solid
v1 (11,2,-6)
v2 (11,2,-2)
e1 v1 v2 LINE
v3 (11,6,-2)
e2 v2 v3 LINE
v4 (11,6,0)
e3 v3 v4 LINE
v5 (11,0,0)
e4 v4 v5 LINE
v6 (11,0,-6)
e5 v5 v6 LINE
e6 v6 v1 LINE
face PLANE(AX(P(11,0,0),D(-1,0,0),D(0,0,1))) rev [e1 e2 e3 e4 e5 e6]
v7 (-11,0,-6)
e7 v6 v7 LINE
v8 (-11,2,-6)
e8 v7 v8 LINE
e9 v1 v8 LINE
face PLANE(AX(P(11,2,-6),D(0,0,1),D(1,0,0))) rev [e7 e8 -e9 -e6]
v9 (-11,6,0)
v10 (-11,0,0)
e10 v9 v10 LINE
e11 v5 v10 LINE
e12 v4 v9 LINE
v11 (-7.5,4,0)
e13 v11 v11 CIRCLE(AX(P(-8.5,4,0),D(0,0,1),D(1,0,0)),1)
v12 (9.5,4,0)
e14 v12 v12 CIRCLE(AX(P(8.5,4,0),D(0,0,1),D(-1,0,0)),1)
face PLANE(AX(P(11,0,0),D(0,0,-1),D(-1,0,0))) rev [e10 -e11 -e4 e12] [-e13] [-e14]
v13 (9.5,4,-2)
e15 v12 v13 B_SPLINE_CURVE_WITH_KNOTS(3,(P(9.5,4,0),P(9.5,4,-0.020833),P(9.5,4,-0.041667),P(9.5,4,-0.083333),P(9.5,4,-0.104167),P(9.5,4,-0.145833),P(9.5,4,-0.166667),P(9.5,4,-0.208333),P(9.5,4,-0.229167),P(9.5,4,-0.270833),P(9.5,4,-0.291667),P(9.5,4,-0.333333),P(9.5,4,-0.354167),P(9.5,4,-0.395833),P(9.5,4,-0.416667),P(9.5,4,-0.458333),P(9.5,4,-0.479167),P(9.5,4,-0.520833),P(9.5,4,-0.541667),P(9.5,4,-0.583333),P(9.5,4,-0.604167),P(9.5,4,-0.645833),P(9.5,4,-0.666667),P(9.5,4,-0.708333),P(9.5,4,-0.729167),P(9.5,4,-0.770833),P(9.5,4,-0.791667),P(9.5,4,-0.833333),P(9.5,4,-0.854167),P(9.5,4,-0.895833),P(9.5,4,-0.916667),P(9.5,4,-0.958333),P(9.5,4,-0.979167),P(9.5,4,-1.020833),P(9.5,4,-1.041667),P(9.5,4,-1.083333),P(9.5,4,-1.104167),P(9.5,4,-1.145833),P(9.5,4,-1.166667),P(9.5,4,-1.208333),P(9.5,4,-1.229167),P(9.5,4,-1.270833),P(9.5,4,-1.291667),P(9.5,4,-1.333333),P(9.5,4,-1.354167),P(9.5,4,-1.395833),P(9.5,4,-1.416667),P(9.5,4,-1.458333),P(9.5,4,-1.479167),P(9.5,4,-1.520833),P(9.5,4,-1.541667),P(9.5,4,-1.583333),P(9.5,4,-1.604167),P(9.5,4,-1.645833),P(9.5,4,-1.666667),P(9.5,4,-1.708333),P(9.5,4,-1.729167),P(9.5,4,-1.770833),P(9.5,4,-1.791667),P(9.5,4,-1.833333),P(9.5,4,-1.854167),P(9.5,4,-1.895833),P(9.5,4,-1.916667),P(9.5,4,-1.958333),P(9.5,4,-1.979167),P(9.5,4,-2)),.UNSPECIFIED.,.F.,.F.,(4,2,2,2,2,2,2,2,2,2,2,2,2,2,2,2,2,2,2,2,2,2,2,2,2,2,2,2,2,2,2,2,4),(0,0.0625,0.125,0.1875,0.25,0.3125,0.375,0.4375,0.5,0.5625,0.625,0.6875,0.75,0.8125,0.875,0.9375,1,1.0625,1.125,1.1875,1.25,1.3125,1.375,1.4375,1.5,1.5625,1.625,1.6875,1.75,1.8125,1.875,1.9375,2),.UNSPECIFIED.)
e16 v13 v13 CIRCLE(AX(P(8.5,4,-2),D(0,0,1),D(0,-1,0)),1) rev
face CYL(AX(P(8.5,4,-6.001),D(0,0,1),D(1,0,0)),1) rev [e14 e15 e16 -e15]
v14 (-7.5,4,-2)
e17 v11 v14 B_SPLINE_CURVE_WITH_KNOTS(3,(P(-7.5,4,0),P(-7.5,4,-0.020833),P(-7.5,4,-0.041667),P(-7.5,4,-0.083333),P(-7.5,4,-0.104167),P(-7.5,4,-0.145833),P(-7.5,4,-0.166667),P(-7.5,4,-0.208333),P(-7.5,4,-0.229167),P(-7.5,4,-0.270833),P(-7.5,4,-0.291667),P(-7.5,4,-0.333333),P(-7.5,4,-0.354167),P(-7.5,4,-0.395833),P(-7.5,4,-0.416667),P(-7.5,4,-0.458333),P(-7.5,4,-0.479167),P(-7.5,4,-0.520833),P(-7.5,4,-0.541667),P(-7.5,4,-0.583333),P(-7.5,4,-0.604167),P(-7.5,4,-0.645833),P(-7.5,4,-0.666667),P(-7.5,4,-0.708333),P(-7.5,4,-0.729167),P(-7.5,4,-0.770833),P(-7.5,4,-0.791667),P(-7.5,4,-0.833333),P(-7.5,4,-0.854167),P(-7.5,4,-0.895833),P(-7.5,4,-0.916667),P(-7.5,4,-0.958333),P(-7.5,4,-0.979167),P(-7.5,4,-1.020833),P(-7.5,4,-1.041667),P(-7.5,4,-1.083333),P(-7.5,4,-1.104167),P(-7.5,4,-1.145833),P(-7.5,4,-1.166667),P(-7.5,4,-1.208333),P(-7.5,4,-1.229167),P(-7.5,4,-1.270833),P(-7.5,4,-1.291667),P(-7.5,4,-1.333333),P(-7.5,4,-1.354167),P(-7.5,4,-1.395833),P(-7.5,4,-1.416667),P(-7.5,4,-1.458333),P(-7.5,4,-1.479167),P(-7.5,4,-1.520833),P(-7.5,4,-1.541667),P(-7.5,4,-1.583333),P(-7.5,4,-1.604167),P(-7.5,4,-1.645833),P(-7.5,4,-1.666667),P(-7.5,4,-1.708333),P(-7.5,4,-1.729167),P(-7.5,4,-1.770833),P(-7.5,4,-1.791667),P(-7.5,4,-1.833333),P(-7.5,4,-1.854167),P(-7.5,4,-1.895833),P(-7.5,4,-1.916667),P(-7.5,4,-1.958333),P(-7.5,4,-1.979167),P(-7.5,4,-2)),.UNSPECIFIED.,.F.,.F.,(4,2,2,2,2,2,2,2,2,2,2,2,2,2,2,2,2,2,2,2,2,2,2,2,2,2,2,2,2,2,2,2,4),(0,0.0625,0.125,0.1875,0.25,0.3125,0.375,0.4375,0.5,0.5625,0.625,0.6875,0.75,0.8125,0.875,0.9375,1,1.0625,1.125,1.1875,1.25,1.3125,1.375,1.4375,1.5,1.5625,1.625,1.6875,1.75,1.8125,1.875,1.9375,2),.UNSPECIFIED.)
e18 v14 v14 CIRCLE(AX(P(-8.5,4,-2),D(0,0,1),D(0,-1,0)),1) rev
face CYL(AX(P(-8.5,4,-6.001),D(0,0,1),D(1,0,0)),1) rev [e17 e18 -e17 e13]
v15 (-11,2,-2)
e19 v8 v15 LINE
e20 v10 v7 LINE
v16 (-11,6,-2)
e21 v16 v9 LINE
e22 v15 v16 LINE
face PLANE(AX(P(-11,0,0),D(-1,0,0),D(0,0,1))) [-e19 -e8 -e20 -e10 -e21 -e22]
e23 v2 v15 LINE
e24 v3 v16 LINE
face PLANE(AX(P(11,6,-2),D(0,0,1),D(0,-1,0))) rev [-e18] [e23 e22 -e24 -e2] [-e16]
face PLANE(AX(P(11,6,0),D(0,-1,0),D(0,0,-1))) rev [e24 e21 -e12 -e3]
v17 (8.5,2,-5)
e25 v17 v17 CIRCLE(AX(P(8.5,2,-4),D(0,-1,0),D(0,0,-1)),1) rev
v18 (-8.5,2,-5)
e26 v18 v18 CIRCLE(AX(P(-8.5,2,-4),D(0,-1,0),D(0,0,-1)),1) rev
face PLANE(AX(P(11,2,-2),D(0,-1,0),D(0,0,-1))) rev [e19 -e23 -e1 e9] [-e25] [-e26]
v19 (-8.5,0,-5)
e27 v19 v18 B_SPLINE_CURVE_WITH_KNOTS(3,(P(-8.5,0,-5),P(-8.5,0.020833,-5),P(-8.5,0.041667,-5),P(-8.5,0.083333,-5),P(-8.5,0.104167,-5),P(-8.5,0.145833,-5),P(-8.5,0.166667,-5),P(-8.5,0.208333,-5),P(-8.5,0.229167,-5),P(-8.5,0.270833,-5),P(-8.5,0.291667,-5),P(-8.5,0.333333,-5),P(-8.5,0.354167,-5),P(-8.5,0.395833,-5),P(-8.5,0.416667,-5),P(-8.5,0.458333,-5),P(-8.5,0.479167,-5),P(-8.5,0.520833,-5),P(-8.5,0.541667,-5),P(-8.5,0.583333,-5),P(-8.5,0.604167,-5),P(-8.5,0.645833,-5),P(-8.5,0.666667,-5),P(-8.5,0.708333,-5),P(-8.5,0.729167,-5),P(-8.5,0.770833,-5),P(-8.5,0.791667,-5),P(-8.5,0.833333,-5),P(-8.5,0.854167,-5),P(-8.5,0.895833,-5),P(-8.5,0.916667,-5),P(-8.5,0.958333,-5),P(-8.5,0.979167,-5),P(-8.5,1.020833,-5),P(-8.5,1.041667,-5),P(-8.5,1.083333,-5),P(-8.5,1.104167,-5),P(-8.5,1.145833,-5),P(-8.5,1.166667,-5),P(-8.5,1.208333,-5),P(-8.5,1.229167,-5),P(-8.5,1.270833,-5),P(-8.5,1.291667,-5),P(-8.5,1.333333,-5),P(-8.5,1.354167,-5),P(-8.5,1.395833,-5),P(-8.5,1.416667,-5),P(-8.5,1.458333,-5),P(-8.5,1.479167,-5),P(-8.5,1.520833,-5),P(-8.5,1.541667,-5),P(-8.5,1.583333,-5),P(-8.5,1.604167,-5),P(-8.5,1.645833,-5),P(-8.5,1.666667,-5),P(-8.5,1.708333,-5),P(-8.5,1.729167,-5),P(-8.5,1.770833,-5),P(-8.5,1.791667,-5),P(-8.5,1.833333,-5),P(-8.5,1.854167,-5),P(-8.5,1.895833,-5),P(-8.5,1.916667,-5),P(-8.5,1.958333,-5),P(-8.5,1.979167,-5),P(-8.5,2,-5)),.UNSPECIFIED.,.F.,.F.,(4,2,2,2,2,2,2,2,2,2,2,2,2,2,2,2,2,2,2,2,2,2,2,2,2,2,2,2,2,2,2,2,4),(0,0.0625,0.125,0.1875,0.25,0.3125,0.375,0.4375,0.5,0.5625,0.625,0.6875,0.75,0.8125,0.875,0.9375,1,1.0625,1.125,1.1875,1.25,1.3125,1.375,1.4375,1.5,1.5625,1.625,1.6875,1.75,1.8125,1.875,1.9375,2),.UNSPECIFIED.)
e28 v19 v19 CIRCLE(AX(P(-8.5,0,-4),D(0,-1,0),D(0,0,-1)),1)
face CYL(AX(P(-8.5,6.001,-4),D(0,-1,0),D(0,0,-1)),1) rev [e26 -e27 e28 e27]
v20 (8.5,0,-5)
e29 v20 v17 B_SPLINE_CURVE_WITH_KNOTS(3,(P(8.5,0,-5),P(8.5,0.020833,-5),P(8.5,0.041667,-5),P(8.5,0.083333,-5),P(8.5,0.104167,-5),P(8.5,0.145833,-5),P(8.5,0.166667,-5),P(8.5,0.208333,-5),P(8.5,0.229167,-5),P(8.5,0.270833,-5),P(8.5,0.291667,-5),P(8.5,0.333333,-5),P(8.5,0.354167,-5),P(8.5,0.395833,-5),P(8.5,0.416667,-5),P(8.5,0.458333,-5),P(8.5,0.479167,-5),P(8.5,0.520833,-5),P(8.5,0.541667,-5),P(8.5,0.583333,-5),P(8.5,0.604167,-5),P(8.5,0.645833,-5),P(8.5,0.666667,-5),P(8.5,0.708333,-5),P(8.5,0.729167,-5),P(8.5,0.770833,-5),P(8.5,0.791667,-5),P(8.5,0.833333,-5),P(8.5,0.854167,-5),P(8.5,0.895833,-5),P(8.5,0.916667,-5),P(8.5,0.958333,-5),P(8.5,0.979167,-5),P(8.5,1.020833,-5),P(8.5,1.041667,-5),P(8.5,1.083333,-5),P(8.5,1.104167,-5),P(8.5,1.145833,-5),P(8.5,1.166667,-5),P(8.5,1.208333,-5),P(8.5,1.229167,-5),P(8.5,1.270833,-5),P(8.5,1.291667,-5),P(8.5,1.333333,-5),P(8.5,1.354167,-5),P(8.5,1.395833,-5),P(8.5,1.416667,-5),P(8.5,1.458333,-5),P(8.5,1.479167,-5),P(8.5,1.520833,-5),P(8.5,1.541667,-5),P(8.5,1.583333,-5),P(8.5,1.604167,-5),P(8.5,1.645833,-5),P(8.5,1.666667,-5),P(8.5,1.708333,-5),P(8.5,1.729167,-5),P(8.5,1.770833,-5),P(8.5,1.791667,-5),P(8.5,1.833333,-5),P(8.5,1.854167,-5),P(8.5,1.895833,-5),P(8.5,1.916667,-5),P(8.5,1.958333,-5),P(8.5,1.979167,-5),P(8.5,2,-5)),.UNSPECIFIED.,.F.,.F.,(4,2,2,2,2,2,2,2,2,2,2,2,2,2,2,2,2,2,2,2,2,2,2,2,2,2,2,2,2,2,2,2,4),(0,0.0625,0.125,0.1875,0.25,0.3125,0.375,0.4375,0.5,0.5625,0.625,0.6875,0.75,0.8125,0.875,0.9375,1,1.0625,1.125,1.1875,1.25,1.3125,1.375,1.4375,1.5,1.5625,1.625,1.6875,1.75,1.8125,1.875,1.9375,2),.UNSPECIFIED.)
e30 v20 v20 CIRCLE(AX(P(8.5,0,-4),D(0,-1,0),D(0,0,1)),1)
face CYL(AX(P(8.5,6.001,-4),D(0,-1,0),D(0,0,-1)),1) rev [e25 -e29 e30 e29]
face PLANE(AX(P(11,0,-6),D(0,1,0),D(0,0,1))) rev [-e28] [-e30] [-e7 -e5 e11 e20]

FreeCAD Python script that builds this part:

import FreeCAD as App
import Part
import Sketcher

V = App.Vector


def add_polygon(sketch, points):
    """Adds a closed chain of lines whose ends are joined by coincident constraints."""
    first, n = sketch.GeometryCount, len(points)
    for a, b in zip(points, points[1:] + points[:1]):
        sketch.addGeometry(Part.LineSegment(App.Vector(*a, 0), App.Vector(*b, 0)), False)
    for i in range(n):
        sketch.addConstraint(Sketcher.Constraint("Coincident", first + i, 2, first + (i + 1) % n, 1))

doc = App.newDocument("Part")
params = doc.addObject("Spreadsheet::Sheet", "Params")
for row, (alias, value) in enumerate([
    ("sketch1_width", "6 mm"),
    ("sketch1_width2", "2 mm"),
    ("pad1_length", "22 mm"),
    ("sketch2_diameter", "2 mm"),
    ("sketch3_diameter", "2 mm"),
    ("sketch4_diameter", "2 mm"),
    ("sketch5_diameter", "2 mm"),
], start=1):
    params.set(f"A{row}", alias)
    params.set(f"B{row}", "=" + value)
    params.setAlias(f"B{row}", alias)

body = doc.addObject("PartDesign::Body", "Body")

sketch1 = body.newObject("Sketcher::SketchObject", "Sketch")
sketch1.AttachmentSupport = (doc.getObject("YZ_Plane"), [""])
sketch1.MapMode = "FlatFace"
add_polygon(sketch1, [(6, 0), (0, 0), (0, -6), (2, -6), (2, -2), (6, -2)])
sketch1.addConstraint([
    Sketcher.Constraint("Horizontal", 0),
    Sketcher.Constraint("Vertical", 1),
    Sketcher.Constraint("Horizontal", 2),
    Sketcher.Constraint("Vertical", 3),
    Sketcher.Constraint("Horizontal", 4),
    Sketcher.Constraint("Vertical", 5),
    Sketcher.Constraint("Coincident", 0, 2, -1, 1),
    Sketcher.Constraint("Equal", 0, 1),
    Sketcher.Constraint("Equal", 4, 3),
    Sketcher.Constraint("DistanceX", 0, 2, 0, 1, 6.0),
    Sketcher.Constraint("DistanceX", 2, 1, 2, 2, 2.0),
])
sketch1.setExpression("Constraints[15]", "Params.sketch1_width")
sketch1.setExpression("Constraints[16]", "Params.sketch1_width2")
pad1 = body.newObject("PartDesign::Pad", "Pad")
pad1.Profile = sketch1
pad1.setExpression("Length", "Params.pad1_length")
pad1.Midplane = True

sketch2 = body.newObject("Sketcher::SketchObject", "Sketch001")
sketch2.AttachmentSupport = (doc.getObject("XY_Plane"), [""])
sketch2.MapMode = "FlatFace"
sketch2.addGeometry(Part.Circle(V(-8.5, 4, 0), V(0, 0, 1), 1), False)
sketch2.addConstraint([
    Sketcher.Constraint("Diameter", 0, 2.0),
    Sketcher.Constraint("DistanceY", -1, 1, 0, 3, 4.0),
    Sketcher.Constraint("DistanceX", 0, 3, -1, 1, 8.5),
])
sketch2.setExpression("Constraints[0]", "Params.sketch2_diameter")
pocket1 = body.newObject("PartDesign::Pocket", "Pocket")
pocket1.Profile = sketch2
pocket1.Type = "UpToFirst"

sketch3 = body.newObject("Sketcher::SketchObject", "Sketch002")
sketch3.AttachmentSupport = (doc.getObject("XY_Plane"), [""])
sketch3.MapMode = "FlatFace"
sketch3.addGeometry(Part.Circle(V(8.5, 4, 0), V(0, 0, 1), 1), False)
sketch3.addConstraint([
    Sketcher.Constraint("Diameter", 0, 2.0),
    Sketcher.Constraint("DistanceY", -1, 1, 0, 3, 4.0),
    Sketcher.Constraint("DistanceX", -1, 1, 0, 3, 8.5),
])
sketch3.setExpression("Constraints[0]", "Params.sketch3_diameter")
pocket2 = body.newObject("PartDesign::Pocket", "Pocket001")
pocket2.Profile = sketch3
pocket2.Type = "UpToFirst"

sketch4 = body.newObject("Sketcher::SketchObject", "Sketch003")
sketch4.AttachmentSupport = (doc.getObject("XZ_Plane"), [""])
sketch4.MapMode = "FlatFace"
sketch4.addGeometry(Part.Circle(V(-8.5, -4, 0), V(0, 0, 1), 1), False)
sketch4.addConstraint([
    Sketcher.Constraint("Diameter", 0, 2.0),
    Sketcher.Constraint("DistanceY", 0, 3, -1, 1, 4.0),
    Sketcher.Constraint("DistanceX", 0, 3, -1, 1, 8.5),
])
sketch4.setExpression("Constraints[0]", "Params.sketch4_diameter")
pocket3 = body.newObject("PartDesign::Pocket", "Pocket002")
pocket3.Profile = sketch4
pocket3.Type = "UpToFirst"

sketch5 = body.newObject("Sketcher::SketchObject", "Sketch004")
sketch5.AttachmentSupport = (doc.getObject("XZ_Plane"), [""])
sketch5.MapMode = "FlatFace"
sketch5.addGeometry(Part.Circle(V(8.5, -4, 0), V(0, 0, 1), 1), False)
sketch5.addConstraint([
    Sketcher.Constraint("Diameter", 0, 2.0),
    Sketcher.Constraint("DistanceY", 0, 3, -1, 1, 4.0),
    Sketcher.Constraint("DistanceX", -1, 1, 0, 3, 8.5),
])
sketch5.setExpression("Constraints[0]", "Params.sketch5_diameter")
pocket4 = body.newObject("PartDesign::Pocket", "Pocket003")
pocket4.Profile = sketch5
pocket4.Type = "UpToFirst"

doc.recompute()
